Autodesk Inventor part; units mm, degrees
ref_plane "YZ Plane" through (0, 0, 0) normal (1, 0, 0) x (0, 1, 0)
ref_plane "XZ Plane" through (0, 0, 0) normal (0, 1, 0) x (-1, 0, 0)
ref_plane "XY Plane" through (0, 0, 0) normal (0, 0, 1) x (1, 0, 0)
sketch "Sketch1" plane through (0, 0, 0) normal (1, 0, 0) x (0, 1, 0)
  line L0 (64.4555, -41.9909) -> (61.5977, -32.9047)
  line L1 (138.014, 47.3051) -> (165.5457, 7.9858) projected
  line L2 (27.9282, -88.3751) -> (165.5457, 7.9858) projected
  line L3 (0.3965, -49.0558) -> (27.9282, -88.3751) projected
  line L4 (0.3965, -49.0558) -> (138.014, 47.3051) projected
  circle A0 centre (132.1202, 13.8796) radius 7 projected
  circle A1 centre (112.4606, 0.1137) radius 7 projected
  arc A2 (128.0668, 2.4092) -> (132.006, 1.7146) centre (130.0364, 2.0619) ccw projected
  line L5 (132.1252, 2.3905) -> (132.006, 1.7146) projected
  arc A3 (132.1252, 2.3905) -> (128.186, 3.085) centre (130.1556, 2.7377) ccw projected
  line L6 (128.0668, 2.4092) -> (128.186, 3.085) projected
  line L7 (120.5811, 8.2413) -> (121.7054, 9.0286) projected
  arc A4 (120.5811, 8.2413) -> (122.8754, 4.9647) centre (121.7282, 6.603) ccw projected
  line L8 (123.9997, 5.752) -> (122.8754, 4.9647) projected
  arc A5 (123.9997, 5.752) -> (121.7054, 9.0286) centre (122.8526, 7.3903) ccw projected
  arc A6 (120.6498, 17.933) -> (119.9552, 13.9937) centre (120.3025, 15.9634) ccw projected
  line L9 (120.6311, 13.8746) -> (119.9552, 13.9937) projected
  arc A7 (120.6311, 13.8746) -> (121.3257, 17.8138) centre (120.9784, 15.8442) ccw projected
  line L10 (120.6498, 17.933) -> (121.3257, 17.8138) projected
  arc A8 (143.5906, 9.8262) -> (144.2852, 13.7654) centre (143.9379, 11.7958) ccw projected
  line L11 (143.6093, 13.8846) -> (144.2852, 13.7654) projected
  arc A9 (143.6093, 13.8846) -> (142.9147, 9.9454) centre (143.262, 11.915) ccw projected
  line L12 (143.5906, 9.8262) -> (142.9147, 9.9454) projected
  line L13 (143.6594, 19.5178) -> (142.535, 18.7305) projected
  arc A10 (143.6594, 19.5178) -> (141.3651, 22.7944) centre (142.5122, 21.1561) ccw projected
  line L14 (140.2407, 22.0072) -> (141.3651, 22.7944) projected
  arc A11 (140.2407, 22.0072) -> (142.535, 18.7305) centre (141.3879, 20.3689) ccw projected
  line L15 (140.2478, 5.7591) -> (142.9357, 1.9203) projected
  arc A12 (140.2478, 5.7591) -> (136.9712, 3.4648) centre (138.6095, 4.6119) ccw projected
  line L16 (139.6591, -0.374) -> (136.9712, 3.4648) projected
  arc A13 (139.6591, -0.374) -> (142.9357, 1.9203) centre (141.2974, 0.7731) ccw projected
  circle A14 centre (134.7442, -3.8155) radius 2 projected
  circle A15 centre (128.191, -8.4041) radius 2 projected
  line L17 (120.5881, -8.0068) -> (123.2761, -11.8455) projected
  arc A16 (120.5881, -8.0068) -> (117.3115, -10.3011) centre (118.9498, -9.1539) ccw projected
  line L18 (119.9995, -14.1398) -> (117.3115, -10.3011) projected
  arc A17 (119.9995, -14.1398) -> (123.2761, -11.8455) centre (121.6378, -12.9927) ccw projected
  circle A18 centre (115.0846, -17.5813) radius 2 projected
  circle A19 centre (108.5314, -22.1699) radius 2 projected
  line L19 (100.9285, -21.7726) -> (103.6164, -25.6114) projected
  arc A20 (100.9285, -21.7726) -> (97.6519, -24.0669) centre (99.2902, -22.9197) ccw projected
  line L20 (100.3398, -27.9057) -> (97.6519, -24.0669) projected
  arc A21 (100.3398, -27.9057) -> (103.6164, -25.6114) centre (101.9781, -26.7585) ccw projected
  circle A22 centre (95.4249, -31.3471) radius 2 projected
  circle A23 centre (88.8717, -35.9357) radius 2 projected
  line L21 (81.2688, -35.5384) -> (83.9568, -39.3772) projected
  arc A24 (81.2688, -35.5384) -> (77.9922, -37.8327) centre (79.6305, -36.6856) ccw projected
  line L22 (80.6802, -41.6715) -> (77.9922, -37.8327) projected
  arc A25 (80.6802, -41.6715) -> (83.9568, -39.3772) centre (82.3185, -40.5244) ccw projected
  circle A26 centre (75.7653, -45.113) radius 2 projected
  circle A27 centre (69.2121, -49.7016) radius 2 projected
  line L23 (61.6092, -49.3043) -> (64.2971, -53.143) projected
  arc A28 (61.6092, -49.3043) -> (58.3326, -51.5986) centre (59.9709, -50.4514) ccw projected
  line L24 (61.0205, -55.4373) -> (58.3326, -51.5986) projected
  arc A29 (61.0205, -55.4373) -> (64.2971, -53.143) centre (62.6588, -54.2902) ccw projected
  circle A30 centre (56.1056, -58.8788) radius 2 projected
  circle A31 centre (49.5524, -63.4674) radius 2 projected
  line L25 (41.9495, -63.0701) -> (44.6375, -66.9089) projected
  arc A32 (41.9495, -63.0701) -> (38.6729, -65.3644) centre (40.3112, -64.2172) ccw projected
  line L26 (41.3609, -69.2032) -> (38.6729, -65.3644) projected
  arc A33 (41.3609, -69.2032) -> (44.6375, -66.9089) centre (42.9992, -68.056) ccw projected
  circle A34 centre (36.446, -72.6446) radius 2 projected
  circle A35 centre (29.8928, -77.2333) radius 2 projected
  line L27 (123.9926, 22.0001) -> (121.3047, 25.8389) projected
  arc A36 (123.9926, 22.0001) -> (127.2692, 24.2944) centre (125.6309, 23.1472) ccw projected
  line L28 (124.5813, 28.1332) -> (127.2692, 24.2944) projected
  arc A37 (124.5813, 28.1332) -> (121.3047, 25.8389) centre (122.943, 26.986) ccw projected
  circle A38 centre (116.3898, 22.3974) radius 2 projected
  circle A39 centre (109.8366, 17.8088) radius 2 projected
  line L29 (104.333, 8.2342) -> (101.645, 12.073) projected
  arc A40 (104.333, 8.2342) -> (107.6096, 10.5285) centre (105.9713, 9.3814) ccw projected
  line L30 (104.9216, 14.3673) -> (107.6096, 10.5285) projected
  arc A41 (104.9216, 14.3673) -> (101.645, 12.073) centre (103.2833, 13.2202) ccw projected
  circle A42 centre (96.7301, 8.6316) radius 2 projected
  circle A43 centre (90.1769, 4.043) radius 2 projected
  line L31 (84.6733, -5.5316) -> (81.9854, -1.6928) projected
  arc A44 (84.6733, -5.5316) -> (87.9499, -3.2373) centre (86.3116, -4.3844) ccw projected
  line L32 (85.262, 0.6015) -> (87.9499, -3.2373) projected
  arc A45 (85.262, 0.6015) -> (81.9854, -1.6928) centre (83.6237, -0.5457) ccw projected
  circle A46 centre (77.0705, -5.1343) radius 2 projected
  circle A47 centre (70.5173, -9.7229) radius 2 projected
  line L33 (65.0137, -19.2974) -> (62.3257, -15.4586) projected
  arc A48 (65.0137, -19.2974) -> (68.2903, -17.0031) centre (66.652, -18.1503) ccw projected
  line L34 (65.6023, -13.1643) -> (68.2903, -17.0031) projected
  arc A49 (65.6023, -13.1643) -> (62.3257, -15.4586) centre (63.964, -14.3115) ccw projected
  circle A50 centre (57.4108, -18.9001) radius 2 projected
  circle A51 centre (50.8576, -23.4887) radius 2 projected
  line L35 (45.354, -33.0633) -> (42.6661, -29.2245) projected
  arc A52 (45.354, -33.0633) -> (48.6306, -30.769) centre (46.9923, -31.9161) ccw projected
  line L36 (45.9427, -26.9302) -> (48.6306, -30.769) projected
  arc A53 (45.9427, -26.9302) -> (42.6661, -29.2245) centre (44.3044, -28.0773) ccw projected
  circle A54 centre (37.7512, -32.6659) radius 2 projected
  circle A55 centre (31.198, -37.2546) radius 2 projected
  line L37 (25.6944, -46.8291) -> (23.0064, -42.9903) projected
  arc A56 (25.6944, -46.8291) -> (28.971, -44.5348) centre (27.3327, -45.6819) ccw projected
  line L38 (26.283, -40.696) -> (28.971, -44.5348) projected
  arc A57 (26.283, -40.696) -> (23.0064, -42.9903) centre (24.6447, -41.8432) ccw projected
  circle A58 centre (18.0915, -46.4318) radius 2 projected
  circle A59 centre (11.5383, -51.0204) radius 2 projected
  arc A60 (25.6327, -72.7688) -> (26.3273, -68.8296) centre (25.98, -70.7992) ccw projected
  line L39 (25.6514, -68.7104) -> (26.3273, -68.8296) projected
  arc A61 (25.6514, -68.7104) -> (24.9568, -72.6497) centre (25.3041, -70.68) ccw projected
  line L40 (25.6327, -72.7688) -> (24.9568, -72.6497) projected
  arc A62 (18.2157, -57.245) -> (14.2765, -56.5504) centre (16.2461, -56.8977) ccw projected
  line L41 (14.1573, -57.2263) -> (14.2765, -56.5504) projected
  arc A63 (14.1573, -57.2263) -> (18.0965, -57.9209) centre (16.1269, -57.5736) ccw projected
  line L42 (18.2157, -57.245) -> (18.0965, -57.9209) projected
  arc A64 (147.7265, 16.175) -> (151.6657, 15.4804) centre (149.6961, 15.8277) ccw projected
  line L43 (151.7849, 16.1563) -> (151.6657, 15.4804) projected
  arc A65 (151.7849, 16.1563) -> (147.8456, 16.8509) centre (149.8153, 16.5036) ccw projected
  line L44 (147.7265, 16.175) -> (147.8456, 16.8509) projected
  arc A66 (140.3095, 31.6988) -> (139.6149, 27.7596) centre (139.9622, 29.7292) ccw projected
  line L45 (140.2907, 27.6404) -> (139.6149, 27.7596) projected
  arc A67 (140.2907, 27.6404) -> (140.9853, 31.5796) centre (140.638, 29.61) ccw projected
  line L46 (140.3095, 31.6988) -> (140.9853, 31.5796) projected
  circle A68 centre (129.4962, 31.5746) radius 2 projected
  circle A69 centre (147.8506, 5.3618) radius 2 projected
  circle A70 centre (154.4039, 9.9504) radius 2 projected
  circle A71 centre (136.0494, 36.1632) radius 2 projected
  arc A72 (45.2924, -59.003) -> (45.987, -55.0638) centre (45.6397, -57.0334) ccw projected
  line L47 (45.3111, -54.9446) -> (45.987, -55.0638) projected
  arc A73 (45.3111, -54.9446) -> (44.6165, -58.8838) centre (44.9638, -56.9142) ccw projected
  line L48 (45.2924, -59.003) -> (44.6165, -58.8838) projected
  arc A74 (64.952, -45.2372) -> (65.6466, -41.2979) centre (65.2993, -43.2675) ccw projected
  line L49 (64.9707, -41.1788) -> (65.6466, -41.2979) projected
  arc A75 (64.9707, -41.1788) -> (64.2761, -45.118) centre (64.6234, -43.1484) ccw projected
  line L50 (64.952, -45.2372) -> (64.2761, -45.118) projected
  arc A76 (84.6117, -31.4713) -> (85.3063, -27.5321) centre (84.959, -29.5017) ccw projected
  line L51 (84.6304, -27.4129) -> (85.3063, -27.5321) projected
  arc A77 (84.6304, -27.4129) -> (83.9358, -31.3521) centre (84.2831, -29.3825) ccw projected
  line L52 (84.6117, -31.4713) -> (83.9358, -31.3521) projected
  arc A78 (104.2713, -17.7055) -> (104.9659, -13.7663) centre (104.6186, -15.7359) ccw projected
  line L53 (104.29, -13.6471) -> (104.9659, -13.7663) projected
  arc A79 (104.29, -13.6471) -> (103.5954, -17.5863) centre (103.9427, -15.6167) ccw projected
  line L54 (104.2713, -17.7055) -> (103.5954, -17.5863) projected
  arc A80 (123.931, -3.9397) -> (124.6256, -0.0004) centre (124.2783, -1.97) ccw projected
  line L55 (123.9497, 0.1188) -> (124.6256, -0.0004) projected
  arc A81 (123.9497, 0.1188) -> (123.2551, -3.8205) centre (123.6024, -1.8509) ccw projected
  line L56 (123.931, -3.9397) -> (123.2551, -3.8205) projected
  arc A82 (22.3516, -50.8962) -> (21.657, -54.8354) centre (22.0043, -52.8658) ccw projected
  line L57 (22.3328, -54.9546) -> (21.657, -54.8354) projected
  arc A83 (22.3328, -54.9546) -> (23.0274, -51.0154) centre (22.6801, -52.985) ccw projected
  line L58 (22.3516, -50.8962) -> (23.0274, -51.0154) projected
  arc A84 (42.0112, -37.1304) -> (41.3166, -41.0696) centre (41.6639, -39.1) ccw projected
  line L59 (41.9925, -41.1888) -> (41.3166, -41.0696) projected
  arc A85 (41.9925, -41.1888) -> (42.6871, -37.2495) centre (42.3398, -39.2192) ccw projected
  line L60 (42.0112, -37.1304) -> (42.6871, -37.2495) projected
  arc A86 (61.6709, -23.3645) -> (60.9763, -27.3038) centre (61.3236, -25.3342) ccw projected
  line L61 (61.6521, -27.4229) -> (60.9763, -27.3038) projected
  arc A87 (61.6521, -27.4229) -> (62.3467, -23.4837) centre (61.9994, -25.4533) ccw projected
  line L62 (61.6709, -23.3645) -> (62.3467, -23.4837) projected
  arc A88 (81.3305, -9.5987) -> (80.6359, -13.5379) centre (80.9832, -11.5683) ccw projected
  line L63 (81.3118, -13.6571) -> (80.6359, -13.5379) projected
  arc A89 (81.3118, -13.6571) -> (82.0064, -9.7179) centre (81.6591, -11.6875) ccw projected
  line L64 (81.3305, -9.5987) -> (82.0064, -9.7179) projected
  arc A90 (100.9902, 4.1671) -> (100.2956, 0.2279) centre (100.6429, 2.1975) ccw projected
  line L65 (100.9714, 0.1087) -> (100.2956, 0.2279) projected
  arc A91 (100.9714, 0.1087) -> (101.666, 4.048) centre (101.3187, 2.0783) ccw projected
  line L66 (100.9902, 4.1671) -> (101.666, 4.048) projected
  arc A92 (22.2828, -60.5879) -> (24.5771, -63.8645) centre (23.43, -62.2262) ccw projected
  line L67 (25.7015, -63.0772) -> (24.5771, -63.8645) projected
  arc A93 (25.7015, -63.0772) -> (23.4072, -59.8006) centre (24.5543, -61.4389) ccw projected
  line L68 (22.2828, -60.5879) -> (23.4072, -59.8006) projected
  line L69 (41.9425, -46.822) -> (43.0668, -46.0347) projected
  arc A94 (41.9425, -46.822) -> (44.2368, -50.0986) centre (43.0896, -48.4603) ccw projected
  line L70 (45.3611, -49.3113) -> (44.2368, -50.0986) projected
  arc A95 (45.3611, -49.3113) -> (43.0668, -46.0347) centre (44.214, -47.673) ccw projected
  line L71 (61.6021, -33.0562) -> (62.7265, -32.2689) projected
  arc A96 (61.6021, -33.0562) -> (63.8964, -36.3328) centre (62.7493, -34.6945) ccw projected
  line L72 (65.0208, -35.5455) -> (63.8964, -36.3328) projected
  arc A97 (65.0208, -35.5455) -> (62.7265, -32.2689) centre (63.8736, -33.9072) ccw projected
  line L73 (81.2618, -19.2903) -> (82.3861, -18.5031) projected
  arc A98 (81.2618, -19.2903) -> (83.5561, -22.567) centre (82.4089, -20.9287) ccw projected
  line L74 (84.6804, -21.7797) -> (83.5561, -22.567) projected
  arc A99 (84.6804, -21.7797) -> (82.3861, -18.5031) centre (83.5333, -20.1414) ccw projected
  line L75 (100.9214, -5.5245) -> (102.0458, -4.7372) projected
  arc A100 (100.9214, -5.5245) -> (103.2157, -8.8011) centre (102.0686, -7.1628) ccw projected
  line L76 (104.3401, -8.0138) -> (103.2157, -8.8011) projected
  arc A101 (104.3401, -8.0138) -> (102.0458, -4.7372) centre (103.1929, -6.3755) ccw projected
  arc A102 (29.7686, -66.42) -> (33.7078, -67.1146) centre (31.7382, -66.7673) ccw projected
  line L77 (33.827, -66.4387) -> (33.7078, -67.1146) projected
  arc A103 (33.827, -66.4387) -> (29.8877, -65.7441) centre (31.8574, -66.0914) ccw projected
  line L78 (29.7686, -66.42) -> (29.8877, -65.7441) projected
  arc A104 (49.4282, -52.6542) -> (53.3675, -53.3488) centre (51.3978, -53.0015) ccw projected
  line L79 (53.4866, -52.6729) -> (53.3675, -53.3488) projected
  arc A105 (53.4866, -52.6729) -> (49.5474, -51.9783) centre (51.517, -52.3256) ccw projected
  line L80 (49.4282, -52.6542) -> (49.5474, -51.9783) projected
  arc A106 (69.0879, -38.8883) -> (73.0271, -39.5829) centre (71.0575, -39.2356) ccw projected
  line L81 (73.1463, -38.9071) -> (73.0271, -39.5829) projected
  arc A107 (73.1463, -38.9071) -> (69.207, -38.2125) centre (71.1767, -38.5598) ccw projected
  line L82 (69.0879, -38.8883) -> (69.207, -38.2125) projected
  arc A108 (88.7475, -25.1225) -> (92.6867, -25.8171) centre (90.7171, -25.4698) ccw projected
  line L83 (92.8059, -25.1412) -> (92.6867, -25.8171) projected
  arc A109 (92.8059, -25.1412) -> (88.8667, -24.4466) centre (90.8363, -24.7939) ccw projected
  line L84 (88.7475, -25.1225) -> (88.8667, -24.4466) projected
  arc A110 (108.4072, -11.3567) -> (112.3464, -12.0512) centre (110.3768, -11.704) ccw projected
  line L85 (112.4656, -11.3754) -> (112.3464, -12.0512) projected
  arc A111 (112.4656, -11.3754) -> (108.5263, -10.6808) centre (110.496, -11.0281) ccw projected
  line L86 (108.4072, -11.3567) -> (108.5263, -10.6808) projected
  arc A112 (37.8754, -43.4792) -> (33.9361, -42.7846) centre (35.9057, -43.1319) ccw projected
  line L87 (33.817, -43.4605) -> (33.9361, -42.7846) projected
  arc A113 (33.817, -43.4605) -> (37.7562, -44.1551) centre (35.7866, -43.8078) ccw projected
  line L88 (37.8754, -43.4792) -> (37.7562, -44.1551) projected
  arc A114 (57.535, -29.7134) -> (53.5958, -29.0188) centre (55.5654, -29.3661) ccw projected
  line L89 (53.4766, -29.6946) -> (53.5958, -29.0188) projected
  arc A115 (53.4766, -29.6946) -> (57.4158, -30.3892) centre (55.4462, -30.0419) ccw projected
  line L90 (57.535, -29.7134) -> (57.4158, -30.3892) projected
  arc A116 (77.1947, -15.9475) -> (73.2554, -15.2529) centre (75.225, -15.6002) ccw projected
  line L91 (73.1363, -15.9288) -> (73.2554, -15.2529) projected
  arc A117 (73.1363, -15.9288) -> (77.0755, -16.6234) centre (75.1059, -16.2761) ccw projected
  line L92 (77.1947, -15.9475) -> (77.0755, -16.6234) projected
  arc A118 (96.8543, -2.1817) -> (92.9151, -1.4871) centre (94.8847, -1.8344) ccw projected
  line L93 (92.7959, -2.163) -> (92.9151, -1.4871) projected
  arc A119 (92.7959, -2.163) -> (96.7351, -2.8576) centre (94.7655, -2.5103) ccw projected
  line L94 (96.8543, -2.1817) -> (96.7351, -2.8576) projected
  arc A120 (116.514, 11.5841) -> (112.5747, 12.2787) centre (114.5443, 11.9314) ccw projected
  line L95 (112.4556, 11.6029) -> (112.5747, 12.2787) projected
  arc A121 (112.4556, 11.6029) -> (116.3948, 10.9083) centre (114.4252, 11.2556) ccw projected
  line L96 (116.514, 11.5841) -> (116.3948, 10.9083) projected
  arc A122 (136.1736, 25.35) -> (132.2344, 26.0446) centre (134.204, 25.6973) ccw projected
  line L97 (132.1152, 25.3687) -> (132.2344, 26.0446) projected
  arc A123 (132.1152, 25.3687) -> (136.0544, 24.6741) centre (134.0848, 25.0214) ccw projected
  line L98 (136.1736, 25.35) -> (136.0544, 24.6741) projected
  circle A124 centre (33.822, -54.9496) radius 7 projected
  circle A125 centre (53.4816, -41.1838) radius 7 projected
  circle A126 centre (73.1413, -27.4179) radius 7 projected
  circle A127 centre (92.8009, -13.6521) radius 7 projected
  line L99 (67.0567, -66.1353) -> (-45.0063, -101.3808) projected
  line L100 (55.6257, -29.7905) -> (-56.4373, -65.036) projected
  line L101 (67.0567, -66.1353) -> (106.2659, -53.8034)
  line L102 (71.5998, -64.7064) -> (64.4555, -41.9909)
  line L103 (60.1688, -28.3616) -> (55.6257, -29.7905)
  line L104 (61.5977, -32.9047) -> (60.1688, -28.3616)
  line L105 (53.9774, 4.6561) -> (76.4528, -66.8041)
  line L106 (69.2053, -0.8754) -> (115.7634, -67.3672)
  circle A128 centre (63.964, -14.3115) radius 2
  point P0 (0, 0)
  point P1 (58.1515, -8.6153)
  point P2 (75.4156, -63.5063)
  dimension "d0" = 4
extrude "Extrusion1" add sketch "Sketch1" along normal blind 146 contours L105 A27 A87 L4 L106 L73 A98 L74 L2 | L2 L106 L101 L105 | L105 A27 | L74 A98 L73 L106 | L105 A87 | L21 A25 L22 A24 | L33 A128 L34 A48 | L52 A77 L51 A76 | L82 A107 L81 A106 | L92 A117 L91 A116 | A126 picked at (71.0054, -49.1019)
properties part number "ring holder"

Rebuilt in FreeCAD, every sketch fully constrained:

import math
import FreeCAD as App
import Part
import Sketcher

V = App.Vector
Q = App.Units.Quantity


def add_polygon(sketch, points):
    """Adds a closed chain of lines whose ends are joined by coincident constraints."""
    first, n = sketch.GeometryCount, len(points)
    for a, b in zip(points, points[1:] + points[:1]):
        sketch.addGeometry(Part.LineSegment(App.Vector(*a, 0), App.Vector(*b, 0)), False)
    for i in range(n):
        sketch.addConstraint(Sketcher.Constraint("Coincident", first + i, 2, first + (i + 1) % n, 1))

doc = App.newDocument("Part")
body = doc.addObject("PartDesign::Body", "Body")

# Sketch on YZ plane
sketch1 = body.newObject("Sketcher::SketchObject", "Sketch")
sketch1.AttachmentSupport = (doc.getObject("YZ_Plane"), [""])
sketch1.MapMode = "FlatFace"
add_polygon(sketch1, [(75.4, -63.5), (106.3, -53.8), (69.2, -0.9), (58.2, -8.6)])  # lines 0-3
sketch1.addGeometry(Part.Circle(V(75.8, -45.1, 0), V(0, 0, 1), 2), False)  # 4
sketch1.addGeometry(Part.Circle(V(88.9, -35.9, 0), V(0, 0, 1), 2), False)  # 5
sketch1.addGeometry(Part.ArcOfCircle(Part.Circle(V(64, -14.3, 0), V(0, 0, 1), 2), math.radians(35), math.radians(215)), False)  # 6
sketch1.addGeometry(Part.ArcOfCircle(Part.Circle(V(64, -14.3, 0), V(0, 0, 1), 2), math.radians(-145), math.radians(35)), False)  # 7
sketch1.addGeometry(Part.Circle(V(70.5, -9.7, 0), V(0, 0, 1), 2), False)  # 8
sketch1.addConstraint(Sketcher.Constraint("Tangent", 6, 1, 7, 2))
sketch1.addConstraint(Sketcher.Constraint("Coincident", 7, 1, 6, 2))
sketch1.addConstraint(Sketcher.Constraint("Equal", 4, 5))
sketch1.addConstraint(Sketcher.Constraint("Equal", 5, 6))
sketch1.addConstraint(Sketcher.Constraint("Equal", 7, 8))
sketch1.addConstraint(Sketcher.Constraint("Perpendicular", 1, 2))
sketch1.addConstraint(Sketcher.Constraint("Perpendicular", 0, 3))
sketch1.addConstraint(Sketcher.Constraint("Diameter", 4, 4.0))
sketch1.addConstraint(Sketcher.Constraint("Angle", 1, Q("125 deg")))
sketch1.addConstraint(Sketcher.Constraint("Angle", 0, Q("17.4592 deg")))
sketch1.addConstraint(Sketcher.Constraint("DistanceY", 4, 3, 8, 3, 35.39))
sketch1.addConstraint(Sketcher.Constraint("DistanceX", 1, 2, 4, 3, 6.56))
sketch1.addConstraint(Sketcher.Constraint("DistanceY", 2, 2, 1, 2, 7.74))
sketch1.addConstraint(Sketcher.Constraint("Distance", 3, 57.542))
sketch1.addConstraint(Sketcher.Constraint("DistanceY", 4, 3, -1, 1, 45.113))
sketch1.addConstraint(Sketcher.Constraint("DistanceX", -1, 1, 6, 3, 63.964))
sketch1.addConstraint(Sketcher.Constraint("DistanceX", -1, 1, 0, 2, 106.266))
sketch1.addConstraint(Sketcher.Constraint("DistanceX", 8, 3, 4, 3, 5.248))
sketch1.addConstraint(Sketcher.Constraint("DistanceY", 0, 2, 6, 3, 39.492))
sketch1.addConstraint(Sketcher.Constraint("DistanceX", 3, 2, 5, 3, 13.456))
sketch1.addConstraint(Sketcher.Constraint("DistanceX", 6, 1, 8, 3, 4.915))
sketch1.addConstraint(Sketcher.Constraint("DistanceY", 7, 1, 6, 3, 1.147))
sketch1.addConstraint(Sketcher.Constraint("DistanceY", 5, 3, -1, 1, 35.9357))
sketch1.addConstraint(Sketcher.Constraint("DistanceY", 6, 3, -1, 1, 14.3115))
pad1 = body.newObject("PartDesign::Pad", "Pad")
pad1.Profile = sketch1
pad1.Length = 146

doc.recompute()
